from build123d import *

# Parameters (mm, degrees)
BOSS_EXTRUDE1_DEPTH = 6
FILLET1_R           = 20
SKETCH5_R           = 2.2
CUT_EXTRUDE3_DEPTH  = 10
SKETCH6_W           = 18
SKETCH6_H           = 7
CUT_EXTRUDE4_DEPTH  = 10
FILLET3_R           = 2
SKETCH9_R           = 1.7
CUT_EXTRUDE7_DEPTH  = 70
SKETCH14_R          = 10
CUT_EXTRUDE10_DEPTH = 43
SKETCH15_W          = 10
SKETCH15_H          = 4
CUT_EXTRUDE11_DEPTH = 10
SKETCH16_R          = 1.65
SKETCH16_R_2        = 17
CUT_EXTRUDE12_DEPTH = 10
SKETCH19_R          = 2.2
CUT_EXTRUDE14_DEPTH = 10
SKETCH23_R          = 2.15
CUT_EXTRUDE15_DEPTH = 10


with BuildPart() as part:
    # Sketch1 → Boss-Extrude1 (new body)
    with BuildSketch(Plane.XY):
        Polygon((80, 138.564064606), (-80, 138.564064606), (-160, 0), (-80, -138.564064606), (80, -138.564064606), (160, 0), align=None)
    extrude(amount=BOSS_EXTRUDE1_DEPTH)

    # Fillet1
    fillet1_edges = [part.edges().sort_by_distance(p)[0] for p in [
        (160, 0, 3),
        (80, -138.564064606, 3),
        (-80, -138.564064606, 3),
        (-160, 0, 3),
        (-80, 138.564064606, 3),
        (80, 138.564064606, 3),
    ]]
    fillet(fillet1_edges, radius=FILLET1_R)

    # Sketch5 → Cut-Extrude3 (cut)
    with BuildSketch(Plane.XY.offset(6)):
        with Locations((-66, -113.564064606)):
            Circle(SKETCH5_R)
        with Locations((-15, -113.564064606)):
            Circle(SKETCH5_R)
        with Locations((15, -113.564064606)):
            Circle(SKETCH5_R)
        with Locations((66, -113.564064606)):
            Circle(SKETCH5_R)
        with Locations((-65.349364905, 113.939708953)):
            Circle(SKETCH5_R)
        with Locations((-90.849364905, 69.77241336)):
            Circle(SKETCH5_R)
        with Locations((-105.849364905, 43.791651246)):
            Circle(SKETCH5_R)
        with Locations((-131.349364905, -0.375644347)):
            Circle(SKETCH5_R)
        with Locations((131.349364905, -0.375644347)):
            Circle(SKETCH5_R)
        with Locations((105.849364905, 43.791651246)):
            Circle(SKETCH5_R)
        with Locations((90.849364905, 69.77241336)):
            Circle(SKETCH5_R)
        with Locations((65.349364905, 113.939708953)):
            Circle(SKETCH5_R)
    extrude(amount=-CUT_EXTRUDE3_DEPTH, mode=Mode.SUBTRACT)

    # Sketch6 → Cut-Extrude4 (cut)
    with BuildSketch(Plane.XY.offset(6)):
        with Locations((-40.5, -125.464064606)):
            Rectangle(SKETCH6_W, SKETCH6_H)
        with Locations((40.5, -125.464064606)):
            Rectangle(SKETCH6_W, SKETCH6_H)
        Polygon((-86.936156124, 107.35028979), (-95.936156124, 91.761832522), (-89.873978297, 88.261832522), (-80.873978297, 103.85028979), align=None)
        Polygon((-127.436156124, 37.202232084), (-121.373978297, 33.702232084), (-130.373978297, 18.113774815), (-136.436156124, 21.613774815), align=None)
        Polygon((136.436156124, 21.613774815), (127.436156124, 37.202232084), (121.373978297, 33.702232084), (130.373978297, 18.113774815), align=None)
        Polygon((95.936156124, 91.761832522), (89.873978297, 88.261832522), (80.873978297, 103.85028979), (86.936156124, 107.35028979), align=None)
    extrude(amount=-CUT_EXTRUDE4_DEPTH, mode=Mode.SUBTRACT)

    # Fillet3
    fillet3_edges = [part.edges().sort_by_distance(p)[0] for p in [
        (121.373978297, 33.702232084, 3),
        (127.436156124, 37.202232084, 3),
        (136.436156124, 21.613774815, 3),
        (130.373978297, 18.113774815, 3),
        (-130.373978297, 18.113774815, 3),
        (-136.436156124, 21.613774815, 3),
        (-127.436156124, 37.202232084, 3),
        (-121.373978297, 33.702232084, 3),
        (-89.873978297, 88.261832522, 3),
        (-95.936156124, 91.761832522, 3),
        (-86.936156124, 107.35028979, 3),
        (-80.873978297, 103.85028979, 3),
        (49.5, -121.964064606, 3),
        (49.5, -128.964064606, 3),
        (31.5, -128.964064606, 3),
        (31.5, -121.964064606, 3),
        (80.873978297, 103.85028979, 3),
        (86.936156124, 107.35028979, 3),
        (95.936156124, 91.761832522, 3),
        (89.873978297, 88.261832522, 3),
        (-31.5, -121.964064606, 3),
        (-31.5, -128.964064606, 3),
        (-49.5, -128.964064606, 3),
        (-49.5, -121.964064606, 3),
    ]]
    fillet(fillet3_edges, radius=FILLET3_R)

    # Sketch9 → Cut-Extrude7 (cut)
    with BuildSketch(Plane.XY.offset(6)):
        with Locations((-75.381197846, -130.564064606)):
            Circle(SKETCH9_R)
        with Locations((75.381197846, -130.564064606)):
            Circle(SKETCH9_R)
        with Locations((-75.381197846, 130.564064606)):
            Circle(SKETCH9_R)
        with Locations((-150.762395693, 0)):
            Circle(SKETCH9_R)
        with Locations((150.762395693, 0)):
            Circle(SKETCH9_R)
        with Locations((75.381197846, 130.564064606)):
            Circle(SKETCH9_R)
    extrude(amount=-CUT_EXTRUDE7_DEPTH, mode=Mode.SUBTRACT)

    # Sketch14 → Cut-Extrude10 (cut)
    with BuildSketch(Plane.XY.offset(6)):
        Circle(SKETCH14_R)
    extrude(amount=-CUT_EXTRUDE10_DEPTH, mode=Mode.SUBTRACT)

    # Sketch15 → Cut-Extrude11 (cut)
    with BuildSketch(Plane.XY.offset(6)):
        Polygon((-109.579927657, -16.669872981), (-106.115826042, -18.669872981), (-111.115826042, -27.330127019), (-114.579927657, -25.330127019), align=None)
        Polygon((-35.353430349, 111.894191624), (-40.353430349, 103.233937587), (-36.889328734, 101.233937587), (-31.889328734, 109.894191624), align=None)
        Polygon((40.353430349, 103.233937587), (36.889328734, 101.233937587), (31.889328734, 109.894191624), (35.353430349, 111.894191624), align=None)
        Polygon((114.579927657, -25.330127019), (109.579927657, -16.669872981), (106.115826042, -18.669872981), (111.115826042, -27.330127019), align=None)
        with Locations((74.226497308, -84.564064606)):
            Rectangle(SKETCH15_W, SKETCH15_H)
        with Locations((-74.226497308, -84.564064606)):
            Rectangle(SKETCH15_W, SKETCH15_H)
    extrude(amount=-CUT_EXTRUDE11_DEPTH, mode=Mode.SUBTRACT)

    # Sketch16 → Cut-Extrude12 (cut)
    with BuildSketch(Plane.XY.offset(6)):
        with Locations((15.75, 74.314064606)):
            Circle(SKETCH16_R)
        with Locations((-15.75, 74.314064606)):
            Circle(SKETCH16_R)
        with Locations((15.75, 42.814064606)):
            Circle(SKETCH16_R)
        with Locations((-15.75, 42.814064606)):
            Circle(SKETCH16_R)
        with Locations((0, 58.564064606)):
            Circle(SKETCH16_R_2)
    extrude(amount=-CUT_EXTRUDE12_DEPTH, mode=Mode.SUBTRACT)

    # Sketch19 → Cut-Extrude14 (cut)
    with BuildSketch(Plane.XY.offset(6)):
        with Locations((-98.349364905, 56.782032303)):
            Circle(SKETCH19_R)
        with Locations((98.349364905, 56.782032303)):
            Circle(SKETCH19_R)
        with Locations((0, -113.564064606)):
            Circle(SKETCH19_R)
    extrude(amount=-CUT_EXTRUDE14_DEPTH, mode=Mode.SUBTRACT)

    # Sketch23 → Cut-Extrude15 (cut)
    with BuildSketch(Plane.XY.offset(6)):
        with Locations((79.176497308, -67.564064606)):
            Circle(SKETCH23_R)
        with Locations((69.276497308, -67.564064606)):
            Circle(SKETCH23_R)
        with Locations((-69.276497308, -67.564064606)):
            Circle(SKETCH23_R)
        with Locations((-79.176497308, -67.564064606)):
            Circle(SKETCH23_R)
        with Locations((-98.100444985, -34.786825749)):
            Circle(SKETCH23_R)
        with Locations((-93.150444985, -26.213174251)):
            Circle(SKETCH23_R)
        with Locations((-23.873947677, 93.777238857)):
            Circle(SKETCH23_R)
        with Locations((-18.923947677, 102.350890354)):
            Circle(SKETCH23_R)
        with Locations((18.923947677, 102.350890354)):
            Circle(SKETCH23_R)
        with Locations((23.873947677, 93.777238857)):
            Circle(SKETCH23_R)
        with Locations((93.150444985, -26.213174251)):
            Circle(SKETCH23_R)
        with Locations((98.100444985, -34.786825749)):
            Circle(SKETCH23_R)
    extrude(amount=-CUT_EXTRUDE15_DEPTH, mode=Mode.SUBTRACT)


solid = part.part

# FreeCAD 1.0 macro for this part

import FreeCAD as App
import Part
import Sketcher
Q = App.Units.Quantity


def edges_at(feature, points):
    """Names of the edges that pass closest to the given points."""
    edges = feature.Shape.Edges
    near = lambda p: min(range(len(edges)), key=lambda i: edges[i].distToShape(Part.Vertex(*p))[0])
    return sorted({f"Edge{near(p) + 1}" for p in points})


def add_polygon(sketch, points):
    """Adds a closed chain of lines whose ends are joined by coincident constraints."""
    first, n = sketch.GeometryCount, len(points)
    for a, b in zip(points, points[1:] + points[:1]):
        sketch.addGeometry(Part.LineSegment(App.Vector(*a, 0), App.Vector(*b, 0)), False)
    for i in range(n):
        sketch.addConstraint(Sketcher.Constraint("Coincident", first + i, 2, first + (i + 1) % n, 1))

doc = App.newDocument("Part")
body = doc.addObject("PartDesign::Body", "Body")

sketch1 = doc.addObject("Sketcher::SketchObject", "Sketch")
body.addObject(sketch1)
sketch1.AttachmentSupport = (doc.XY_Plane, [""])
sketch1.MapMode = "FlatFace"
add_polygon(sketch1, [(80, 138.564065), (-80, 138.564065), (-160, 0), (-80, -138.564065), (80, -138.564065), (160, 0)])
sketch1.addConstraint([
    Sketcher.Constraint("Horizontal", 0),
    Sketcher.Constraint("Horizontal", 3),
    Sketcher.Constraint("Symmetric", 0, 2, 3, 2, -1, 1),
    Sketcher.Constraint("Symmetric", 1, 2, 4, 2, -1, 1),
    Sketcher.Constraint("PointOnObject", 1, 2, -1),
    Sketcher.Constraint("Parallel", 2, 5),
    Sketcher.Constraint("Vertical", 0, 2, 2, 2),
    Sketcher.Constraint("DistanceX", 0, 2, 0, 1, 160.0),
    Sketcher.Constraint("Angle", 1, Q("-120 deg")),
    Sketcher.Constraint("Distance", 1, 160.0),
])
pad1 = doc.addObject("PartDesign::Pad", "Pad")
body.addObject(pad1)
pad1.Profile = sketch1
pad1.Length = 6
doc.recompute()

fillet = doc.addObject("PartDesign::Fillet", "Fillet")
body.addObject(fillet)
fillet.Base = (pad1, edges_at(pad1, [
    (160, 0, 3),
    (80, -138.564, 3),
    (-80, -138.564, 3),
    (-160, 0, 3),
    (-80, 138.564, 3),
    (80, 138.564, 3),
]))
fillet.Radius = 20

sketch2 = doc.addObject("Sketcher::SketchObject", "Sketch001")
body.addObject(sketch2)
sketch2.AttachmentSupport = (doc.XY_Plane, [""])
sketch2.MapMode = "FlatFace"
sketch2.AttachmentOffset = App.Placement(App.Vector(0, 0, 6), App.Rotation())
sketch2.addGeometry([
    Part.Circle(App.Vector(-66, -113.564065, 0), App.Vector(0, 0, 1), 2.2),
    Part.Circle(App.Vector(-15, -113.564065, 0), App.Vector(0, 0, 1), 2.2),
    Part.Circle(App.Vector(15, -113.564065, 0), App.Vector(0, 0, 1), 2.2),
    Part.Circle(App.Vector(66, -113.564065, 0), App.Vector(0, 0, 1), 2.2),
    Part.Circle(App.Vector(-65.349365, 113.939709, 0), App.Vector(0, 0, 1), 2.2),
    Part.Circle(App.Vector(-90.849365, 69.772413, 0), App.Vector(0, 0, 1), 2.2),
    Part.Circle(App.Vector(-105.849365, 43.791651, 0), App.Vector(0, 0, 1), 2.2),
    Part.Circle(App.Vector(-131.349365, -0.375644, 0), App.Vector(0, 0, 1), 2.2),
    Part.Circle(App.Vector(131.349365, -0.375644, 0), App.Vector(0, 0, 1), 2.2),
    Part.Circle(App.Vector(105.849365, 43.791651, 0), App.Vector(0, 0, 1), 2.2),
    Part.Circle(App.Vector(90.849365, 69.772413, 0), App.Vector(0, 0, 1), 2.2),
    Part.Circle(App.Vector(65.349365, 113.939709, 0), App.Vector(0, 0, 1), 2.2),
], False)
sketch2.addConstraint([
    Sketcher.Constraint("Equal", 0, 1),
    Sketcher.Constraint("Equal", 1, 2),
    Sketcher.Constraint("Equal", 2, 3),
    Sketcher.Constraint("Equal", 3, 4),
    Sketcher.Constraint("Equal", 4, 5),
    Sketcher.Constraint("Equal", 5, 6),
    Sketcher.Constraint("Equal", 6, 7),
    Sketcher.Constraint("Equal", 7, 8),
    Sketcher.Constraint("Equal", 8, 9),
    Sketcher.Constraint("Equal", 9, 10),
    Sketcher.Constraint("Equal", 10, 11),
    Sketcher.Constraint("Symmetric", 1, 3, 2, 3, -2),
    Sketcher.Constraint("Symmetric", 0, 3, 3, 3, -2),
    Sketcher.Constraint("Symmetric", 7, 3, 8, 3, -2),
    Sketcher.Constraint("Symmetric", 6, 3, 9, 3, -2),
    Sketcher.Constraint("Symmetric", 5, 3, 10, 3, -2),
    Sketcher.Constraint("Symmetric", 4, 3, 11, 3, -2),
    Sketcher.Constraint("Horizontal", 0, 3, 1, 3),
    Sketcher.Constraint("Diameter", 0, 4.4),
    Sketcher.Constraint("DistanceX", 0, 3, -1, 1, 66.0),
    Sketcher.Constraint("DistanceX", 1, 3, -1, 1, 15.0),
    Sketcher.Constraint("DistanceX", 6, 3, 5, 3, 15.0),
    Sketcher.Constraint("DistanceX", 7, 3, 4, 3, 66.0),
    Sketcher.Constraint("DistanceX", 5, 3, 4, 3, 25.5),
    Sketcher.Constraint("DistanceY", -1, 1, 4, 3, 113.939709),
    Sketcher.Constraint("DistanceY", -1, 1, 6, 3, 43.791651),
    Sketcher.Constraint("DistanceY", 0, 3, 7, 3, 113.18842),
    Sketcher.Constraint("DistanceX", 4, 3, 8, 3, 196.69873),
    Sketcher.Constraint("DistanceY", 0, 3, -1, 1, 113.564065),
    Sketcher.Constraint("DistanceY", -1, 1, 5, 3, 69.772413),
])
pocket1 = doc.addObject("PartDesign::Pocket", "Pocket")
body.addObject(pocket1)
pocket1.Profile = sketch2
pocket1.Length = 10

sketch3 = doc.addObject("Sketcher::SketchObject", "Sketch002")
body.addObject(sketch3)
sketch3.AttachmentSupport = (doc.XY_Plane, [""])
sketch3.MapMode = "FlatFace"
sketch3.AttachmentOffset = App.Placement(App.Vector(0, 0, 6), App.Rotation())
add_polygon(sketch3, [(-49.5, -121.964065), (-49.5, -128.964065), (-31.5, -128.964065), (-31.5, -121.964065)])
add_polygon(sketch3, [(31.5, -121.964065), (31.5, -128.964065), (49.5, -128.964065), (49.5, -121.964065)])
add_polygon(sketch3, [(-86.936156, 107.35029), (-95.936156, 91.761833), (-89.873978, 88.261833), (-80.873978, 103.85029)])
add_polygon(sketch3, [(-121.373978, 33.702232), (-127.436156, 37.202232), (-136.436156, 21.613775), (-130.373978, 18.113775)])
add_polygon(sketch3, [(136.436156, 21.613775), (127.436156, 37.202232), (121.373978, 33.702232), (130.373978, 18.113775)])
add_polygon(sketch3, [(89.873978, 88.261833), (95.936156, 91.761833), (86.936156, 107.35029), (80.873978, 103.85029)])
sketch3.addConstraint([
    Sketcher.Constraint("Vertical", 0),
    Sketcher.Constraint("Horizontal", 1),
    Sketcher.Constraint("Vertical", 2),
    Sketcher.Constraint("Horizontal", 3),
    Sketcher.Constraint("Vertical", 4),
    Sketcher.Constraint("Horizontal", 5),
    Sketcher.Constraint("Vertical", 6),
    Sketcher.Constraint("Horizontal", 7),
    Sketcher.Constraint("Symmetric", 1, 2, 4, 2, -2),
    Sketcher.Constraint("Symmetric", 3, 2, 6, 2, -2),
    Sketcher.Constraint("Symmetric", 12, 2, 16, 2, -2),
    Sketcher.Constraint("Symmetric", 15, 2, 17, 2, -2),
    Sketcher.Constraint("Symmetric", 14, 2, 18, 2, -2),
    Sketcher.Constraint("Symmetric", 13, 2, 19, 2, -2),
    Sketcher.Constraint("Symmetric", 8, 2, 20, 2, -2),
    Sketcher.Constraint("Symmetric", 11, 2, 21, 2, -2),
    Sketcher.Constraint("Symmetric", 10, 2, 22, 2, -2),
    Sketcher.Constraint("Symmetric", 9, 2, 23, 2, -2),
    Sketcher.Constraint("Perpendicular", 8, 9),
    Sketcher.Constraint("Perpendicular", 9, 10),
    Sketcher.Constraint("Perpendicular", 10, 11),
    Sketcher.Constraint("Parallel", 11, 12),
    Sketcher.Constraint("Perpendicular", 12, 13),
    Sketcher.Constraint("Perpendicular", 13, 14),
    Sketcher.Constraint("Perpendicular", 14, 15),
    Sketcher.Constraint("Equal", 11, 12),
    Sketcher.Constraint("Equal", 10, 13),
    Sketcher.Constraint("DistanceX", 1, 1, 1, 2, 18.0),
    Sketcher.Constraint("DistanceY", 0, 2, 0, 1, 7.0),
    Sketcher.Constraint("Angle", 8, Q("-120 deg")),
    Sketcher.Constraint("Distance", 8, 18.0),
    Sketcher.Constraint("Distance", 9, 7.0),
    Sketcher.Constraint("DistanceX", 1, 2, 4, 2, 63.0),
    Sketcher.Constraint("DistanceX", 12, 2, 8, 2, 31.5),
    Sketcher.Constraint("DistanceY", 12, 2, 8, 2, 54.5596),
    Sketcher.Constraint("DistanceX", 9, 2, -1, 1, 89.873978),
    Sketcher.Constraint("DistanceY", -1, 1, 10, 2, 103.85029),
    Sketcher.Constraint("DistanceY", 6, 2, 18, 2, 140.077839),
])
pocket2 = doc.addObject("PartDesign::Pocket", "Pocket001")
body.addObject(pocket2)
pocket2.Profile = sketch3
pocket2.Length = 10
doc.recompute()

fillet2 = doc.addObject("PartDesign::Fillet", "Fillet001")
body.addObject(fillet2)
fillet2.Base = (pocket2, edges_at(pocket2, [
    (121.374, 33.702, 3),
    (127.436, 37.202, 3),
    (136.436, 21.614, 3),
    (130.374, 18.114, 3),
    (-130.374, 18.114, 3),
    (-136.436, 21.614, 3),
    (-127.436, 37.202, 3),
    (-121.374, 33.702, 3),
    (-89.874, 88.262, 3),
    (-95.936, 91.762, 3),
    (-86.936, 107.35, 3),
    (-80.874, 103.85, 3),
    (49.5, -121.964, 3),
    (49.5, -128.964, 3),
    (31.5, -128.964, 3),
    (31.5, -121.964, 3),
    (80.874, 103.85, 3),
    (86.936, 107.35, 3),
    (95.936, 91.762, 3),
    (89.874, 88.262, 3),
    (-31.5, -121.964, 3),
    (-31.5, -128.964, 3),
    (-49.5, -128.964, 3),
    (-49.5, -121.964, 3),
]))
fillet2.Radius = 2

sketch4 = doc.addObject("Sketcher::SketchObject", "Sketch003")
body.addObject(sketch4)
sketch4.AttachmentSupport = (doc.XY_Plane, [""])
sketch4.MapMode = "FlatFace"
sketch4.AttachmentOffset = App.Placement(App.Vector(0, 0, 6), App.Rotation())
sketch4.addGeometry([
    Part.Circle(App.Vector(-75.381198, -130.564065, 0), App.Vector(0, 0, 1), 1.7),
    Part.Circle(App.Vector(75.381198, -130.564065, 0), App.Vector(0, 0, 1), 1.7),
    Part.Circle(App.Vector(-75.381198, 130.564065, 0), App.Vector(0, 0, 1), 1.7),
    Part.Circle(App.Vector(-150.762396, 0, 0), App.Vector(0, 0, 1), 1.7),
    Part.Circle(App.Vector(150.762396, 0, 0), App.Vector(0, 0, 1), 1.7),
    Part.Circle(App.Vector(75.381198, 130.564065, 0), App.Vector(0, 0, 1), 1.7),
], False)
sketch4.addConstraint([
    Sketcher.Constraint("Equal", 0, 1),
    Sketcher.Constraint("Equal", 1, 2),
    Sketcher.Constraint("Equal", 2, 3),
    Sketcher.Constraint("Equal", 3, 4),
    Sketcher.Constraint("Equal", 4, 5),
    Sketcher.Constraint("Symmetric", 1, 3, 2, 3, -1, 1),
    Sketcher.Constraint("Symmetric", 3, 3, 4, 3, -1, 1),
    Sketcher.Constraint("Symmetric", 0, 3, 5, 3, -1, 1),
    Sketcher.Constraint("Symmetric", 0, 3, 1, 3, -2),
    Sketcher.Constraint("PointOnObject", 3, 3, -1),
    Sketcher.Constraint("Diameter", 0, 3.4),
    Sketcher.Constraint("DistanceY", 0, 3, 2, 3, 261.128129),
    Sketcher.Constraint("DistanceX", 3, 3, 4, 3, 301.524791),
    Sketcher.Constraint("DistanceX", 0, 3, -1, 1, 75.381198),
])
pocket3 = doc.addObject("PartDesign::Pocket", "Pocket002")
body.addObject(pocket3)
pocket3.Profile = sketch4
pocket3.Length = 70

sketch5 = doc.addObject("Sketcher::SketchObject", "Sketch004")
body.addObject(sketch5)
sketch5.AttachmentSupport = (doc.XY_Plane, [""])
sketch5.MapMode = "FlatFace"
sketch5.AttachmentOffset = App.Placement(App.Vector(0, 0, 6), App.Rotation())
sketch5.addGeometry(Part.Circle(App.Vector(0, 0, 0), App.Vector(0, 0, 1), 10), False)
sketch5.addConstraint([
    Sketcher.Constraint("Coincident", 0, 3, -1, 1),
    Sketcher.Constraint("Diameter", 0, 20.0),
])
pocket4 = doc.addObject("PartDesign::Pocket", "Pocket003")
body.addObject(pocket4)
pocket4.Profile = sketch5
pocket4.Length = 43

sketch6 = doc.addObject("Sketcher::SketchObject", "Sketch005")
body.addObject(sketch6)
sketch6.AttachmentSupport = (doc.XY_Plane, [""])
sketch6.MapMode = "FlatFace"
sketch6.AttachmentOffset = App.Placement(App.Vector(0, 0, 6), App.Rotation())
add_polygon(sketch6, [(-106.115826, -18.669873), (-109.579928, -16.669873), (-114.579928, -25.330127), (-111.115826, -27.330127)])
add_polygon(sketch6, [(-35.35343, 111.894192), (-40.35343, 103.233938), (-36.889329, 101.233938), (-31.889329, 109.894192)])
add_polygon(sketch6, [(36.889329, 101.233938), (40.35343, 103.233938), (35.35343, 111.894192), (31.889329, 109.894192)])
add_polygon(sketch6, [(114.579928, -25.330127), (109.579928, -16.669873), (106.115826, -18.669873), (111.115826, -27.330127)])
add_polygon(sketch6, [(69.226497, -82.564065), (69.226497, -86.564065), (79.226497, -86.564065), (79.226497, -82.564065)])
add_polygon(sketch6, [(-79.226497, -82.564065), (-79.226497, -86.564065), (-69.226497, -86.564065), (-69.226497, -82.564065)])
sketch6.addConstraint([
    Sketcher.Constraint("Vertical", 16),
    Sketcher.Constraint("Horizontal", 17),
    Sketcher.Constraint("Vertical", 18),
    Sketcher.Constraint("Horizontal", 19),
    Sketcher.Constraint("Vertical", 20),
    Sketcher.Constraint("Horizontal", 21),
    Sketcher.Constraint("Vertical", 22),
    Sketcher.Constraint("Horizontal", 23),
    Sketcher.Constraint("Symmetric", 4, 2, 8, 2, -2),
    Sketcher.Constraint("Symmetric", 7, 2, 9, 2, -2),
    Sketcher.Constraint("Symmetric", 6, 2, 10, 2, -2),
    Sketcher.Constraint("Symmetric", 5, 2, 11, 2, -2),
    Sketcher.Constraint("Symmetric", 0, 2, 12, 2, -2),
    Sketcher.Constraint("Symmetric", 3, 2, 13, 2, -2),
    Sketcher.Constraint("Symmetric", 2, 2, 14, 2, -2),
    Sketcher.Constraint("Symmetric", 1, 2, 15, 2, -2),
    Sketcher.Constraint("Symmetric", 17, 2, 20, 2, -2),
    Sketcher.Constraint("Symmetric", 19, 2, 22, 2, -2),
    Sketcher.Constraint("Perpendicular", 0, 1),
    Sketcher.Constraint("Perpendicular", 1, 2),
    Sketcher.Constraint("Perpendicular", 2, 3),
    Sketcher.Constraint("Parallel", 3, 4),
    Sketcher.Constraint("Perpendicular", 4, 5),
    Sketcher.Constraint("Perpendicular", 5, 6),
    Sketcher.Constraint("Perpendicular", 6, 7),
    Sketcher.Constraint("Equal", 3, 4),
    Sketcher.Constraint("Equal", 2, 5),
    Sketcher.Constraint("DistanceX", 17, 1, 17, 2, 10.0),
    Sketcher.Constraint("DistanceY", 16, 2, 16, 1, 4.0),
    Sketcher.Constraint("Angle", 0, Q("150 deg")),
    Sketcher.Constraint("Distance", 0, 4.0),
    Sketcher.Constraint("Distance", 1, 10.0),
    Sketcher.Constraint("DistanceX", 0, 2, 5, 2, 72.690599),
    Sketcher.Constraint("DistanceX", 4, 2, -1, 1, 40.35343),
    Sketcher.Constraint("DistanceY", -1, 1, 6, 2, 109.894192),
    Sketcher.Constraint("DistanceY", 0, 2, 4, 2, 119.903811),
    Sketcher.Constraint("DistanceX", 16, 2, 14, 2, 41.889329),
    Sketcher.Constraint("DistanceY", 16, 2, 13, 2, 67.894192),
])
pocket5 = doc.addObject("PartDesign::Pocket", "Pocket004")
body.addObject(pocket5)
pocket5.Profile = sketch6
pocket5.Length = 10

sketch7 = doc.addObject("Sketcher::SketchObject", "Sketch006")
body.addObject(sketch7)
sketch7.AttachmentSupport = (doc.XY_Plane, [""])
sketch7.MapMode = "FlatFace"
sketch7.AttachmentOffset = App.Placement(App.Vector(0, 0, 6), App.Rotation())
sketch7.addGeometry([
    Part.Circle(App.Vector(15.75, 74.314065, 0), App.Vector(0, 0, 1), 1.65),
    Part.Circle(App.Vector(-15.75, 74.314065, 0), App.Vector(0, 0, 1), 1.65),
    Part.Circle(App.Vector(15.75, 42.814065, 0), App.Vector(0, 0, 1), 1.65),
    Part.Circle(App.Vector(-15.75, 42.814065, 0), App.Vector(0, 0, 1), 1.65),
    Part.Circle(App.Vector(0, 58.564065, 0), App.Vector(0, 0, 1), 17),
], False)
sketch7.addConstraint([
    Sketcher.Constraint("Equal", 0, 1),
    Sketcher.Constraint("Equal", 1, 2),
    Sketcher.Constraint("Equal", 2, 3),
    Sketcher.Constraint("Symmetric", 0, 3, 1, 3, -2),
    Sketcher.Constraint("Symmetric", 2, 3, 3, 3, -2),
    Sketcher.Constraint("PointOnObject", 4, 3, -2),
    Sketcher.Constraint("Vertical", 0, 3, 2, 3),
    Sketcher.Constraint("Diameter", 4, 34.0),
    Sketcher.Constraint("Diameter", 0, 3.3),
    Sketcher.Constraint("DistanceX", 1, 3, 0, 3, 31.5),
    Sketcher.Constraint("DistanceY", 2, 3, 0, 3, 31.5),
    Sketcher.Constraint("DistanceY", 4, 3, 0, 3, 15.75),
    Sketcher.Constraint("DistanceY", -1, 1, 0, 3, 74.314065),
])
pocket6 = doc.addObject("PartDesign::Pocket", "Pocket005")
body.addObject(pocket6)
pocket6.Profile = sketch7
pocket6.Length = 10

sketch8 = doc.addObject("Sketcher::SketchObject", "Sketch007")
body.addObject(sketch8)
sketch8.AttachmentSupport = (doc.XY_Plane, [""])
sketch8.MapMode = "FlatFace"
sketch8.AttachmentOffset = App.Placement(App.Vector(0, 0, 6), App.Rotation())
sketch8.addGeometry([
    Part.Circle(App.Vector(-98.349365, 56.782032, 0), App.Vector(0, 0, 1), 2.2),
    Part.Circle(App.Vector(98.349365, 56.782032, 0), App.Vector(0, 0, 1), 2.2),
    Part.Circle(App.Vector(0, -113.564065, 0), App.Vector(0, 0, 1), 2.2),
], False)
sketch8.addConstraint([
    Sketcher.Constraint("Equal", 0, 1),
    Sketcher.Constraint("Equal", 1, 2),
    Sketcher.Constraint("Symmetric", 0, 3, 1, 3, -2),
    Sketcher.Constraint("PointOnObject", 2, 3, -2),
    Sketcher.Constraint("Diameter", 0, 4.4),
    Sketcher.Constraint("DistanceX", 0, 3, 1, 3, 196.69873),
    Sketcher.Constraint("DistanceY", -1, 1, 0, 3, 56.782032),
    Sketcher.Constraint("DistanceY", 2, 3, -1, 1, 113.564065),
])
pocket7 = doc.addObject("PartDesign::Pocket", "Pocket006")
body.addObject(pocket7)
pocket7.Profile = sketch8
pocket7.Length = 10

sketch9 = doc.addObject("Sketcher::SketchObject", "Sketch008")
body.addObject(sketch9)
sketch9.AttachmentSupport = (doc.XY_Plane, [""])
sketch9.MapMode = "FlatFace"
sketch9.AttachmentOffset = App.Placement(App.Vector(0, 0, 6), App.Rotation())
sketch9.addGeometry([
    Part.Circle(App.Vector(79.176497, -67.564065, 0), App.Vector(0, 0, 1), 2.15),
    Part.Circle(App.Vector(69.276497, -67.564065, 0), App.Vector(0, 0, 1), 2.15),
    Part.Circle(App.Vector(-69.276497, -67.564065, 0), App.Vector(0, 0, 1), 2.15),
    Part.Circle(App.Vector(-79.176497, -67.564065, 0), App.Vector(0, 0, 1), 2.15),
    Part.Circle(App.Vector(-98.100445, -34.786826, 0), App.Vector(0, 0, 1), 2.15),
    Part.Circle(App.Vector(-93.150445, -26.213174, 0), App.Vector(0, 0, 1), 2.15),
    Part.Circle(App.Vector(-23.873948, 93.777239, 0), App.Vector(0, 0, 1), 2.15),
    Part.Circle(App.Vector(-18.923948, 102.35089, 0), App.Vector(0, 0, 1), 2.15),
    Part.Circle(App.Vector(18.923948, 102.35089, 0), App.Vector(0, 0, 1), 2.15),
    Part.Circle(App.Vector(23.873948, 93.777239, 0), App.Vector(0, 0, 1), 2.15),
    Part.Circle(App.Vector(93.150445, -26.213174, 0), App.Vector(0, 0, 1), 2.15),
    Part.Circle(App.Vector(98.100445, -34.786826, 0), App.Vector(0, 0, 1), 2.15),
], False)
sketch9.addConstraint([
    Sketcher.Constraint("Equal", 0, 1),
    Sketcher.Constraint("Equal", 1, 2),
    Sketcher.Constraint("Equal", 2, 3),
    Sketcher.Constraint("Equal", 3, 4),
    Sketcher.Constraint("Equal", 4, 5),
    Sketcher.Constraint("Equal", 5, 6),
    Sketcher.Constraint("Equal", 6, 7),
    Sketcher.Constraint("Equal", 7, 8),
    Sketcher.Constraint("Equal", 8, 9),
    Sketcher.Constraint("Equal", 9, 10),
    Sketcher.Constraint("Equal", 10, 11),
    Sketcher.Constraint("Symmetric", 1, 3, 2, 3, -2),
    Sketcher.Constraint("Symmetric", 0, 3, 3, 3, -2),
    Sketcher.Constraint("Symmetric", 7, 3, 8, 3, -2),
    Sketcher.Constraint("Symmetric", 6, 3, 9, 3, -2),
    Sketcher.Constraint("Symmetric", 5, 3, 10, 3, -2),
    Sketcher.Constraint("Symmetric", 4, 3, 11, 3, -2),
    Sketcher.Constraint("Horizontal", 0, 3, 1, 3),
    Sketcher.Constraint("Diameter", 0, 4.3),
    Sketcher.Constraint("DistanceX", 1, 3, 0, 3, 9.9),
    Sketcher.Constraint("DistanceX", 4, 3, 5, 3, 4.95),
    Sketcher.Constraint("DistanceX", 6, 3, 7, 3, 4.95),
    Sketcher.Constraint("DistanceY", -1, 1, 6, 3, 93.777239),
    Sketcher.Constraint("DistanceY", -1, 1, 7, 3, 102.35089),
    Sketcher.Constraint("DistanceY", 3, 3, 4, 3, 32.777239),
    Sketcher.Constraint("DistanceY", 4, 3, 5, 3, 8.573651),
    Sketcher.Constraint("DistanceX", 2, 3, 6, 3, 45.40255),
    Sketcher.Constraint("DistanceX", -1, 1, 0, 3, 79.176497),
    Sketcher.Constraint("DistanceY", 0, 3, -1, 1, 67.564065),
    Sketcher.Constraint("DistanceX", 4, 3, -1, 1, 98.100445),
])
pocket8 = doc.addObject("PartDesign::Pocket", "Pocket007")
body.addObject(pocket8)
pocket8.Profile = sketch9
pocket8.Length = 10

doc.recompute()
